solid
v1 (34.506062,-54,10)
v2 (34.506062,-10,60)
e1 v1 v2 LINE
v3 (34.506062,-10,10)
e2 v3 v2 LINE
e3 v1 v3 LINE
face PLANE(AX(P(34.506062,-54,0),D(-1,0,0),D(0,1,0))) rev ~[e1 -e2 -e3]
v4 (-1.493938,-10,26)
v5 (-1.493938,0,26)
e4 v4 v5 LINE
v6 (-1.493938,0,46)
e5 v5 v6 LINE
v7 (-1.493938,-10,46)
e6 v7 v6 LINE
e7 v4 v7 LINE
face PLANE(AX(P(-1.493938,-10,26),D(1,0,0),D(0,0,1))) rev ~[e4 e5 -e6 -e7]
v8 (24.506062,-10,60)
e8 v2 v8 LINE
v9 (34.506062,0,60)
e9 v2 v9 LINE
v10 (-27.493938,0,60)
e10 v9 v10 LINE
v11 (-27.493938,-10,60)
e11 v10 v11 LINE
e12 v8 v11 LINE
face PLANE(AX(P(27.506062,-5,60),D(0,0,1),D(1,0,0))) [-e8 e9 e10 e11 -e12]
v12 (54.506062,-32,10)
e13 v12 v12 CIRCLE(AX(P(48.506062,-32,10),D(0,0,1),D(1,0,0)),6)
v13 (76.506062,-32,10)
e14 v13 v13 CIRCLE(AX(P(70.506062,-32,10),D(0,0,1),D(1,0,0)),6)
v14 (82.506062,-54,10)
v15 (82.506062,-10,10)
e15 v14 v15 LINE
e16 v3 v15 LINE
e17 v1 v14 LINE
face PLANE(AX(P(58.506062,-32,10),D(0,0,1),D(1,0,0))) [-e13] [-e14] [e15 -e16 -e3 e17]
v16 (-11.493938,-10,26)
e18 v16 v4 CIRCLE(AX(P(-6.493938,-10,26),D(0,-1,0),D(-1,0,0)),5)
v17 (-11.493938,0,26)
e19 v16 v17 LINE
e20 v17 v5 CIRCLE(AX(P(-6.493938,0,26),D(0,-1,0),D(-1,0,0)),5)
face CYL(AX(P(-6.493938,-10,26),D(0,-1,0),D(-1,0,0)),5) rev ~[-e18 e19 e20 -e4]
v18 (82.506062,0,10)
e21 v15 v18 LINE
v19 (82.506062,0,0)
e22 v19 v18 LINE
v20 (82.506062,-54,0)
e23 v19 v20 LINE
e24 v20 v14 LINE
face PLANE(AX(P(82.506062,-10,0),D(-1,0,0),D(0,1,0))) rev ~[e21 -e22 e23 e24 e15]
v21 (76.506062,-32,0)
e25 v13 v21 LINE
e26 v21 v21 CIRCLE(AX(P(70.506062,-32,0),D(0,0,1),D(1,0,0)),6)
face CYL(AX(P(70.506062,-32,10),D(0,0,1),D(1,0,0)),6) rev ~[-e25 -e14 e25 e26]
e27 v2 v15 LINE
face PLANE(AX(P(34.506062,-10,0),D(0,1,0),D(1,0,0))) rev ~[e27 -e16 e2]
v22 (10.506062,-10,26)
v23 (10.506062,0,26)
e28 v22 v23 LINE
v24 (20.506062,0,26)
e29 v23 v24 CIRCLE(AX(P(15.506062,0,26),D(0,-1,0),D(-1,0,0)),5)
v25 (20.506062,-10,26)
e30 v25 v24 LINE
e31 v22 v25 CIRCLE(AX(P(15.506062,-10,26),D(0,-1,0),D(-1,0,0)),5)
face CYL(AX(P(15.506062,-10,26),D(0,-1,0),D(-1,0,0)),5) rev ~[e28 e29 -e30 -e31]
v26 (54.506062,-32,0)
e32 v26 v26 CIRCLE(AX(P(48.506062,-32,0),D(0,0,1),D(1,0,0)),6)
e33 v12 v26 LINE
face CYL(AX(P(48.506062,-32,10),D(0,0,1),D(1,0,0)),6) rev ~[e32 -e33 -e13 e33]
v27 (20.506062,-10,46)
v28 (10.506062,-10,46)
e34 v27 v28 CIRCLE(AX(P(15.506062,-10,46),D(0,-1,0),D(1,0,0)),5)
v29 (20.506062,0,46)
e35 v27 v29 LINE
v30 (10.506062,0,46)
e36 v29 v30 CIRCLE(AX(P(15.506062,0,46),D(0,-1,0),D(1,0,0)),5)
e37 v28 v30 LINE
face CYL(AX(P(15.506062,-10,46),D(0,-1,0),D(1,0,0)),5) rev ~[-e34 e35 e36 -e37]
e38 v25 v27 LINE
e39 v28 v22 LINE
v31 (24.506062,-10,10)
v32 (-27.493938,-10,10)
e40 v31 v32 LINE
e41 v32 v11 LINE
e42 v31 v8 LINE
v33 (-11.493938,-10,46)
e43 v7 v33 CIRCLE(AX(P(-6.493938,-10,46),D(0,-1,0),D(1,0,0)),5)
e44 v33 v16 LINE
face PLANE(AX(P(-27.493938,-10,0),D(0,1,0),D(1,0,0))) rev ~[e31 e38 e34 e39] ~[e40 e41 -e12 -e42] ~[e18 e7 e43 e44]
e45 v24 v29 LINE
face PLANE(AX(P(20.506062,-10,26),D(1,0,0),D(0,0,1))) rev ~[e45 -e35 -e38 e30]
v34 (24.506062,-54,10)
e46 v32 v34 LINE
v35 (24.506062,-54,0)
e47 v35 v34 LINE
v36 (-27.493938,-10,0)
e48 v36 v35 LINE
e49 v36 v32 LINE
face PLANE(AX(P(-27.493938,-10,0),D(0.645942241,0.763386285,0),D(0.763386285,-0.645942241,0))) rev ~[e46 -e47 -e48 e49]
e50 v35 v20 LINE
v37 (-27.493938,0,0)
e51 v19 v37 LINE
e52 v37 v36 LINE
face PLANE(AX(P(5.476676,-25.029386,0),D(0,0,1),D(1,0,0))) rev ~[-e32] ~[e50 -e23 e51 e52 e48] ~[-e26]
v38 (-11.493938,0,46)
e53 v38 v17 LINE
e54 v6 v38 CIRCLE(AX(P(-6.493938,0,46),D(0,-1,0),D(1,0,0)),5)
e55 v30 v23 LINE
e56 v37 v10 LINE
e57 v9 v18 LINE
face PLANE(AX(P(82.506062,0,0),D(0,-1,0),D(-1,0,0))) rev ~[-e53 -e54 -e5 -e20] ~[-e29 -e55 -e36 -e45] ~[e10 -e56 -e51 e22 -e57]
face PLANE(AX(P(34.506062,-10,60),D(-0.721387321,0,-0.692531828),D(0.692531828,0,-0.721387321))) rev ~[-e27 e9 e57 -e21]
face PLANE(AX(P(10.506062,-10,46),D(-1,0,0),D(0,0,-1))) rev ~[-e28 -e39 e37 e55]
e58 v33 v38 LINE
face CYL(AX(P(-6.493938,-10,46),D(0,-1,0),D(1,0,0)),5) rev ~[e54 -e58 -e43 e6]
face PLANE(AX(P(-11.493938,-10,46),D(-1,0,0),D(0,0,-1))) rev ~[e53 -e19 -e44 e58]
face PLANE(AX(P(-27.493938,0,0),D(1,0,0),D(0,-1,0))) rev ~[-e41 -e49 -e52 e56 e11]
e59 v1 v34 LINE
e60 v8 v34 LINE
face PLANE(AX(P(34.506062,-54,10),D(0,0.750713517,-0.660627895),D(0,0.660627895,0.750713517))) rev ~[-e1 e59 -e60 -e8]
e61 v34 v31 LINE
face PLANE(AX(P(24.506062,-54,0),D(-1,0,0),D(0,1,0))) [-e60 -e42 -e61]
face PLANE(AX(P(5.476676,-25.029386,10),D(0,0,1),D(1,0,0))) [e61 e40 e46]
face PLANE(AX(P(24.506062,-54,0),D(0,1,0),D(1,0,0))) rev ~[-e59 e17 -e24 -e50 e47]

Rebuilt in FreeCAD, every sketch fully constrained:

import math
import FreeCAD as App
import Part
import Sketcher

V = App.Vector

doc = App.newDocument("Part")
body = doc.addObject("PartDesign::Body", "Body")

# Sketch on XY plane
sketch1 = body.newObject("Sketcher::SketchObject", "Sketch")
sketch1.AttachmentSupport = (doc.getObject("XY_Plane"), [""])
sketch1.MapMode = "FlatFace"
sketch1.addGeometry([
    Part.LineSegment(V(82.506062, 0, 0), V(-27.493938, 0, 0)),  # 0
    Part.LineSegment(V(-27.493938, 0, 0), V(-27.493938, -10, 0)),  # 1
    Part.LineSegment(V(-27.493938, -10, 0), V(24.506062, -10, 0)),  # 2
    Part.LineSegment(V(24.506062, -10, 0), V(24.506062, -54, 0)),  # 3
    Part.LineSegment(V(24.506062, -54, 0), V(34.506062, -54, 0)),  # 4
    Part.LineSegment(V(34.506062, -54, 0), V(34.506062, -10, 0)),  # 5
    Part.LineSegment(V(34.506062, -10, 0), V(82.506062, -10, 0)),  # 6
    Part.LineSegment(V(82.506062, -10, 0), V(82.506062, 0, 0)),  # 7
], False)
sketch1.addConstraint([
    Sketcher.Constraint("Coincident", 0, 2, 1, 1),
    Sketcher.Constraint("Coincident", 1, 2, 2, 1),
    Sketcher.Constraint("Coincident", 2, 2, 3, 1),
    Sketcher.Constraint("Coincident", 3, 2, 4, 1),
    Sketcher.Constraint("Coincident", 4, 2, 5, 1),
    Sketcher.Constraint("Coincident", 5, 2, 6, 1),
    Sketcher.Constraint("Coincident", 6, 2, 7, 1),
    Sketcher.Constraint("Coincident", 7, 2, 0, 1),
    Sketcher.Constraint("Horizontal", 0),
    Sketcher.Constraint("Vertical", 1),
    Sketcher.Constraint("Horizontal", 2),
    Sketcher.Constraint("Vertical", 3),
    Sketcher.Constraint("Horizontal", 4),
    Sketcher.Constraint("Vertical", 5),
    Sketcher.Constraint("Horizontal", 6),
    Sketcher.Constraint("Vertical", 7),
    Sketcher.Constraint("PointOnObject", 0, 2, -1),
    Sketcher.Constraint("Horizontal", 2, 2, 5, 2),
    Sketcher.Constraint("Equal", 4, 1),
    Sketcher.Constraint("DistanceX", 0, 2, 0, 1, 110.0),
    Sketcher.Constraint("DistanceX", 2, 1, 2, 2, 52.0),
    Sketcher.Constraint("DistanceX", 4, 1, 4, 2, 10.0),
    Sketcher.Constraint("DistanceY", 3, 2, 3, 1, 44.0),
    Sketcher.Constraint("DistanceX", 0, 2, -1, 1, 27.493938),
])
pad1 = body.newObject("PartDesign::Pad", "Pad")
pad1.Profile = sketch1
pad1.Length = 60

# Sketch on XY plane
sketch2 = body.newObject("Sketcher::SketchObject", "Sketch001")
sketch2.AttachmentSupport = (doc.getObject("XY_Plane"), [""])
sketch2.MapMode = "FlatFace"
sketch2.addGeometry([
    Part.LineSegment(V(24.506062, -10, 0), V(-27.493938, -10, 0)),  # 0
    Part.LineSegment(V(-27.493938, -10, 0), V(24.506062, -54, 0)),  # 1
    Part.LineSegment(V(24.506062, -54, 0), V(24.506062, -10, 0)),  # 2
    Part.LineSegment(V(34.506062, -10, 0), V(34.506062, -54, 0)),  # 3
    Part.LineSegment(V(34.506062, -54, 0), V(82.506062, -54, 0)),  # 4
    Part.LineSegment(V(82.506062, -54, 0), V(82.506062, -10, 0)),  # 5
    Part.LineSegment(V(82.506062, -10, 0), V(34.506062, -10, 0)),  # 6
], False)
sketch2.addConstraint([
    Sketcher.Constraint("Coincident", 0, 2, 1, 1),
    Sketcher.Constraint("Coincident", 1, 2, 2, 1),
    Sketcher.Constraint("Coincident", 2, 2, 0, 1),
    Sketcher.Constraint("Coincident", 3, 2, 4, 1),
    Sketcher.Constraint("Coincident", 4, 2, 5, 1),
    Sketcher.Constraint("Coincident", 5, 2, 6, 1),
    Sketcher.Constraint("Coincident", 6, 2, 3, 1),
    Sketcher.Constraint("Horizontal", 0),
    Sketcher.Constraint("Vertical", 2),
    Sketcher.Constraint("Vertical", 3),
    Sketcher.Constraint("Horizontal", 4),
    Sketcher.Constraint("Vertical", 5),
    Sketcher.Constraint("Horizontal", 6),
    Sketcher.Constraint("Horizontal", 1, 2, 3, 2),
    Sketcher.Constraint("Horizontal", 2, 2, 5, 2),
    Sketcher.Constraint("DistanceX", 0, 2, 0, 1, 52.0),
    Sketcher.Constraint("DistanceX", 4, 1, 4, 2, 48.0),
    Sketcher.Constraint("DistanceY", 2, 1, 2, 2, 44.0),
    Sketcher.Constraint("DistanceY", 0, 2, -1, 1, 10.0),
    Sketcher.Constraint("DistanceX", 1, 2, 3, 2, 10.0),
    Sketcher.Constraint("DistanceX", 0, 2, -1, 1, 27.493938),
])
pad2 = body.newObject("PartDesign::Pad", "Pad001")
pad2.Profile = sketch2
pad2.Length = 10

# Sketch on YZ plane
sketch3 = body.newObject("Sketcher::SketchObject", "Sketch002")
sketch3.AttachmentSupport = (doc.getObject("YZ_Plane"), [""])
sketch3.MapMode = "FlatFace"
sketch3.AttachmentOffset = App.Placement(V(0, 0, 34.506062), App.Rotation())
sketch3.addGeometry([
    Part.LineSegment(V(-54, 60, 0), V(-54, 10, 0)),
    Part.LineSegment(V(-54, 10, 0), V(-10, 60, 0)),
    Part.LineSegment(V(-10, 60, 0), V(-54, 60, 0)),
], False)
sketch3.addConstraint([
    Sketcher.Constraint("Coincident", 0, 2, 1, 1),
    Sketcher.Constraint("Coincident", 1, 2, 2, 1),
    Sketcher.Constraint("Coincident", 2, 2, 0, 1),
    Sketcher.Constraint("Vertical", 0),
    Sketcher.Constraint("Horizontal", 2),
    Sketcher.Constraint("DistanceX", 2, 2, 2, 1, 44.0),
    Sketcher.Constraint("DistanceY", 0, 2, 0, 1, 50.0),
    Sketcher.Constraint("DistanceX", 0, 2, -1, 1, 54.0),
    Sketcher.Constraint("DistanceY", -1, 1, 0, 2, 10.0),
])
pocket1 = body.newObject("PartDesign::Pocket", "Pocket")
pocket1.Profile = sketch3
pocket1.Length = 25

# Sketch on XZ plane
sketch4 = body.newObject("Sketcher::SketchObject", "Sketch003")
sketch4.AttachmentSupport = (doc.getObject("XZ_Plane"), [""])
sketch4.MapMode = "FlatFace"
sketch4.AttachmentOffset = App.Placement(V(0, 0, 10), App.Rotation())
sketch4.addGeometry([
    Part.LineSegment(V(82.506062, 60, 0), V(34.506062, 60, 0)),
    Part.LineSegment(V(34.506062, 60, 0), V(82.506062, 10, 0)),
    Part.LineSegment(V(82.506062, 10, 0), V(82.506062, 60, 0)),
], False)
sketch4.addConstraint([
    Sketcher.Constraint("Coincident", 0, 2, 1, 1),
    Sketcher.Constraint("Coincident", 1, 2, 2, 1),
    Sketcher.Constraint("Coincident", 2, 2, 0, 1),
    Sketcher.Constraint("Horizontal", 0),
    Sketcher.Constraint("Vertical", 2),
    Sketcher.Constraint("DistanceX", 0, 2, 0, 1, 48.0),
    Sketcher.Constraint("DistanceY", 2, 1, 2, 2, 50.0),
    Sketcher.Constraint("DistanceY", -1, 1, 0, 2, 60.0),
    Sketcher.Constraint("DistanceX", -1, 1, 1, 2, 82.506062),
])
pocket2 = body.newObject("PartDesign::Pocket", "Pocket001")
pocket2.Profile = sketch4
pocket2.Length = 25

# Sketch on XY plane
sketch5 = body.newObject("Sketcher::SketchObject", "Sketch004")
sketch5.AttachmentSupport = (doc.getObject("XY_Plane"), [""])
sketch5.MapMode = "FlatFace"
sketch5.AttachmentOffset = App.Placement(V(0, 0, 10), App.Rotation())
sketch5.addGeometry([
    Part.Circle(V(48.506062, -32, 0), V(0, 0, 1), 6),
    Part.Circle(V(70.506062, -32, 0), V(0, 0, 1), 6),
], False)
sketch5.addConstraint([
    Sketcher.Constraint("Equal", 0, 1),
    Sketcher.Constraint("Horizontal", 0, 3, 1, 3),
    Sketcher.Constraint("Diameter", 0, 12.0),
    Sketcher.Constraint("DistanceY", 0, 3, -1, 1, 32.0),
    Sketcher.Constraint("DistanceX", 0, 3, 1, 3, 22.0),
    Sketcher.Constraint("DistanceX", -1, 1, 1, 3, 70.506062),
])
pocket3 = body.newObject("PartDesign::Pocket", "Pocket002")
pocket3.Profile = sketch5
pocket3.Type = "ThroughAll"

# Sketch on XZ plane
sketch6 = body.newObject("Sketcher::SketchObject", "Sketch005")
sketch6.AttachmentSupport = (doc.getObject("XZ_Plane"), [""])
sketch6.MapMode = "FlatFace"
sketch6.AttachmentOffset = App.Placement(V(0, 0, 10), App.Rotation())
sketch6.addGeometry([
    Part.ArcOfCircle(Part.Circle(V(-6.493938, 46, 0), V(0, 0, 1), 5), math.radians(0), math.radians(180)),  # 0
    Part.LineSegment(V(-11.493938, 46, 0), V(-11.493938, 26, 0)),  # 1
    Part.ArcOfCircle(Part.Circle(V(-6.493938, 26, 0), V(0, 0, 1), 5), math.radians(180), math.radians(360)),  # 2
    Part.LineSegment(V(-1.493938, 26, 0), V(-1.493938, 46, 0)),  # 3
    Part.ArcOfCircle(Part.Circle(V(15.506062, 46, 0), V(0, 0, 1), 5), math.radians(0), math.radians(180)),  # 4
    Part.LineSegment(V(10.506062, 46, 0), V(10.506062, 26, 0)),  # 5
    Part.ArcOfCircle(Part.Circle(V(15.506062, 26, 0), V(0, 0, 1), 5), math.radians(180), math.radians(360)),  # 6
    Part.LineSegment(V(20.506062, 26, 0), V(20.506062, 46, 0)),  # 7
], False)
sketch6.addConstraint([
    Sketcher.Constraint("Tangent", 0, 2, 1, 1),
    Sketcher.Constraint("Tangent", 1, 2, 2, 1),
    Sketcher.Constraint("Tangent", 2, 2, 3, 1),
    Sketcher.Constraint("Tangent", 3, 2, 0, 1),
    Sketcher.Constraint("Tangent", 4, 2, 5, 1),
    Sketcher.Constraint("Tangent", 5, 2, 6, 1),
    Sketcher.Constraint("Tangent", 6, 2, 7, 1),
    Sketcher.Constraint("Tangent", 7, 2, 4, 1),
    Sketcher.Constraint("Vertical", 1),
    Sketcher.Constraint("Vertical", 3),
    Sketcher.Constraint("Vertical", 5),
    Sketcher.Constraint("Vertical", 7),
    Sketcher.Constraint("Equal", 2, 4),
    Sketcher.Constraint("Horizontal", 0, 3, 4, 3),
    Sketcher.Constraint("Horizontal", 2, 3, 6, 3),
    Sketcher.Constraint("Radius", 0, 5.0),
    Sketcher.Constraint("DistanceY", 1, 2, 1, 1, 20.0),
    Sketcher.Constraint("DistanceY", -1, 1, 0, 3, 46.0),
    Sketcher.Constraint("DistanceX", 0, 3, 4, 3, 22.0),
    Sketcher.Constraint("DistanceX", -1, 1, 6, 2, 20.506062),
])
pocket4 = body.newObject("PartDesign::Pocket", "Pocket003")
pocket4.Profile = sketch6
pocket4.Type = "ThroughAll"

doc.recompute()
